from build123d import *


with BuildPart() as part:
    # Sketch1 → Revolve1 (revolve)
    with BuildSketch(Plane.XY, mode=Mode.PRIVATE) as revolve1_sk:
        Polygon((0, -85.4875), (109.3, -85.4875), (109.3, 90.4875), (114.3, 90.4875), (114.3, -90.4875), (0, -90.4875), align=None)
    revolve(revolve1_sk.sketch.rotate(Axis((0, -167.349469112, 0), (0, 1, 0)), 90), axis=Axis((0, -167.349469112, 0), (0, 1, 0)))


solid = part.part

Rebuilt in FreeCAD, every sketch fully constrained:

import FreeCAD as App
import Part
import Sketcher
from FreeCAD import Vector


def add_polygon(sketch, points):
    """Adds a closed chain of lines whose ends are joined by coincident constraints."""
    first, n = sketch.GeometryCount, len(points)
    for a, b in zip(points, points[1:] + points[:1]):
        sketch.addGeometry(Part.LineSegment(App.Vector(*a, 0), App.Vector(*b, 0)), False)
    for i in range(n):
        sketch.addConstraint(Sketcher.Constraint("Coincident", first + i, 2, first + (i + 1) % n, 1))

doc = App.newDocument("Part")
body = doc.addObject("PartDesign::Body", "Body")

sketch1 = body.newObject("Sketcher::SketchObject", "Sketch")
sketch1.AttachmentSupport = (doc.getObject("XY_Plane"), [""])
sketch1.MapMode = "FlatFace"
add_polygon(sketch1, [(109.3, -85.4875), (0, -85.4875), (0, -90.4875), (114.3, -90.4875), (114.3, 90.4875), (109.3, 90.4875)])
sketch1.addConstraint([
    Sketcher.Constraint("Horizontal", 0),
    Sketcher.Constraint("Vertical", 1),
    Sketcher.Constraint("Horizontal", 2),
    Sketcher.Constraint("Vertical", 3),
    Sketcher.Constraint("Horizontal", 4),
    Sketcher.Constraint("Vertical", 5),
    Sketcher.Constraint("PointOnObject", 0, 2, -2),
    Sketcher.Constraint("Equal", 4, 1),
    Sketcher.Constraint("DistanceX", 4, 2, 4, 1, 5.0),
    Sketcher.Constraint("DistanceX", 0, 2, 0, 1, 109.3),
    Sketcher.Constraint("DistanceY", 3, 1, 3, 2, 180.975),
    Sketcher.Constraint("DistanceY", 0, 2, -1, 1, 85.4875),
])
revolution = body.newObject("PartDesign::Revolution", "Revolution")
revolution.Profile = sketch1
revolution.ReferenceAxis = (sketch1, ["V_Axis"])
revolution.Angle = 360

doc.recompute()
